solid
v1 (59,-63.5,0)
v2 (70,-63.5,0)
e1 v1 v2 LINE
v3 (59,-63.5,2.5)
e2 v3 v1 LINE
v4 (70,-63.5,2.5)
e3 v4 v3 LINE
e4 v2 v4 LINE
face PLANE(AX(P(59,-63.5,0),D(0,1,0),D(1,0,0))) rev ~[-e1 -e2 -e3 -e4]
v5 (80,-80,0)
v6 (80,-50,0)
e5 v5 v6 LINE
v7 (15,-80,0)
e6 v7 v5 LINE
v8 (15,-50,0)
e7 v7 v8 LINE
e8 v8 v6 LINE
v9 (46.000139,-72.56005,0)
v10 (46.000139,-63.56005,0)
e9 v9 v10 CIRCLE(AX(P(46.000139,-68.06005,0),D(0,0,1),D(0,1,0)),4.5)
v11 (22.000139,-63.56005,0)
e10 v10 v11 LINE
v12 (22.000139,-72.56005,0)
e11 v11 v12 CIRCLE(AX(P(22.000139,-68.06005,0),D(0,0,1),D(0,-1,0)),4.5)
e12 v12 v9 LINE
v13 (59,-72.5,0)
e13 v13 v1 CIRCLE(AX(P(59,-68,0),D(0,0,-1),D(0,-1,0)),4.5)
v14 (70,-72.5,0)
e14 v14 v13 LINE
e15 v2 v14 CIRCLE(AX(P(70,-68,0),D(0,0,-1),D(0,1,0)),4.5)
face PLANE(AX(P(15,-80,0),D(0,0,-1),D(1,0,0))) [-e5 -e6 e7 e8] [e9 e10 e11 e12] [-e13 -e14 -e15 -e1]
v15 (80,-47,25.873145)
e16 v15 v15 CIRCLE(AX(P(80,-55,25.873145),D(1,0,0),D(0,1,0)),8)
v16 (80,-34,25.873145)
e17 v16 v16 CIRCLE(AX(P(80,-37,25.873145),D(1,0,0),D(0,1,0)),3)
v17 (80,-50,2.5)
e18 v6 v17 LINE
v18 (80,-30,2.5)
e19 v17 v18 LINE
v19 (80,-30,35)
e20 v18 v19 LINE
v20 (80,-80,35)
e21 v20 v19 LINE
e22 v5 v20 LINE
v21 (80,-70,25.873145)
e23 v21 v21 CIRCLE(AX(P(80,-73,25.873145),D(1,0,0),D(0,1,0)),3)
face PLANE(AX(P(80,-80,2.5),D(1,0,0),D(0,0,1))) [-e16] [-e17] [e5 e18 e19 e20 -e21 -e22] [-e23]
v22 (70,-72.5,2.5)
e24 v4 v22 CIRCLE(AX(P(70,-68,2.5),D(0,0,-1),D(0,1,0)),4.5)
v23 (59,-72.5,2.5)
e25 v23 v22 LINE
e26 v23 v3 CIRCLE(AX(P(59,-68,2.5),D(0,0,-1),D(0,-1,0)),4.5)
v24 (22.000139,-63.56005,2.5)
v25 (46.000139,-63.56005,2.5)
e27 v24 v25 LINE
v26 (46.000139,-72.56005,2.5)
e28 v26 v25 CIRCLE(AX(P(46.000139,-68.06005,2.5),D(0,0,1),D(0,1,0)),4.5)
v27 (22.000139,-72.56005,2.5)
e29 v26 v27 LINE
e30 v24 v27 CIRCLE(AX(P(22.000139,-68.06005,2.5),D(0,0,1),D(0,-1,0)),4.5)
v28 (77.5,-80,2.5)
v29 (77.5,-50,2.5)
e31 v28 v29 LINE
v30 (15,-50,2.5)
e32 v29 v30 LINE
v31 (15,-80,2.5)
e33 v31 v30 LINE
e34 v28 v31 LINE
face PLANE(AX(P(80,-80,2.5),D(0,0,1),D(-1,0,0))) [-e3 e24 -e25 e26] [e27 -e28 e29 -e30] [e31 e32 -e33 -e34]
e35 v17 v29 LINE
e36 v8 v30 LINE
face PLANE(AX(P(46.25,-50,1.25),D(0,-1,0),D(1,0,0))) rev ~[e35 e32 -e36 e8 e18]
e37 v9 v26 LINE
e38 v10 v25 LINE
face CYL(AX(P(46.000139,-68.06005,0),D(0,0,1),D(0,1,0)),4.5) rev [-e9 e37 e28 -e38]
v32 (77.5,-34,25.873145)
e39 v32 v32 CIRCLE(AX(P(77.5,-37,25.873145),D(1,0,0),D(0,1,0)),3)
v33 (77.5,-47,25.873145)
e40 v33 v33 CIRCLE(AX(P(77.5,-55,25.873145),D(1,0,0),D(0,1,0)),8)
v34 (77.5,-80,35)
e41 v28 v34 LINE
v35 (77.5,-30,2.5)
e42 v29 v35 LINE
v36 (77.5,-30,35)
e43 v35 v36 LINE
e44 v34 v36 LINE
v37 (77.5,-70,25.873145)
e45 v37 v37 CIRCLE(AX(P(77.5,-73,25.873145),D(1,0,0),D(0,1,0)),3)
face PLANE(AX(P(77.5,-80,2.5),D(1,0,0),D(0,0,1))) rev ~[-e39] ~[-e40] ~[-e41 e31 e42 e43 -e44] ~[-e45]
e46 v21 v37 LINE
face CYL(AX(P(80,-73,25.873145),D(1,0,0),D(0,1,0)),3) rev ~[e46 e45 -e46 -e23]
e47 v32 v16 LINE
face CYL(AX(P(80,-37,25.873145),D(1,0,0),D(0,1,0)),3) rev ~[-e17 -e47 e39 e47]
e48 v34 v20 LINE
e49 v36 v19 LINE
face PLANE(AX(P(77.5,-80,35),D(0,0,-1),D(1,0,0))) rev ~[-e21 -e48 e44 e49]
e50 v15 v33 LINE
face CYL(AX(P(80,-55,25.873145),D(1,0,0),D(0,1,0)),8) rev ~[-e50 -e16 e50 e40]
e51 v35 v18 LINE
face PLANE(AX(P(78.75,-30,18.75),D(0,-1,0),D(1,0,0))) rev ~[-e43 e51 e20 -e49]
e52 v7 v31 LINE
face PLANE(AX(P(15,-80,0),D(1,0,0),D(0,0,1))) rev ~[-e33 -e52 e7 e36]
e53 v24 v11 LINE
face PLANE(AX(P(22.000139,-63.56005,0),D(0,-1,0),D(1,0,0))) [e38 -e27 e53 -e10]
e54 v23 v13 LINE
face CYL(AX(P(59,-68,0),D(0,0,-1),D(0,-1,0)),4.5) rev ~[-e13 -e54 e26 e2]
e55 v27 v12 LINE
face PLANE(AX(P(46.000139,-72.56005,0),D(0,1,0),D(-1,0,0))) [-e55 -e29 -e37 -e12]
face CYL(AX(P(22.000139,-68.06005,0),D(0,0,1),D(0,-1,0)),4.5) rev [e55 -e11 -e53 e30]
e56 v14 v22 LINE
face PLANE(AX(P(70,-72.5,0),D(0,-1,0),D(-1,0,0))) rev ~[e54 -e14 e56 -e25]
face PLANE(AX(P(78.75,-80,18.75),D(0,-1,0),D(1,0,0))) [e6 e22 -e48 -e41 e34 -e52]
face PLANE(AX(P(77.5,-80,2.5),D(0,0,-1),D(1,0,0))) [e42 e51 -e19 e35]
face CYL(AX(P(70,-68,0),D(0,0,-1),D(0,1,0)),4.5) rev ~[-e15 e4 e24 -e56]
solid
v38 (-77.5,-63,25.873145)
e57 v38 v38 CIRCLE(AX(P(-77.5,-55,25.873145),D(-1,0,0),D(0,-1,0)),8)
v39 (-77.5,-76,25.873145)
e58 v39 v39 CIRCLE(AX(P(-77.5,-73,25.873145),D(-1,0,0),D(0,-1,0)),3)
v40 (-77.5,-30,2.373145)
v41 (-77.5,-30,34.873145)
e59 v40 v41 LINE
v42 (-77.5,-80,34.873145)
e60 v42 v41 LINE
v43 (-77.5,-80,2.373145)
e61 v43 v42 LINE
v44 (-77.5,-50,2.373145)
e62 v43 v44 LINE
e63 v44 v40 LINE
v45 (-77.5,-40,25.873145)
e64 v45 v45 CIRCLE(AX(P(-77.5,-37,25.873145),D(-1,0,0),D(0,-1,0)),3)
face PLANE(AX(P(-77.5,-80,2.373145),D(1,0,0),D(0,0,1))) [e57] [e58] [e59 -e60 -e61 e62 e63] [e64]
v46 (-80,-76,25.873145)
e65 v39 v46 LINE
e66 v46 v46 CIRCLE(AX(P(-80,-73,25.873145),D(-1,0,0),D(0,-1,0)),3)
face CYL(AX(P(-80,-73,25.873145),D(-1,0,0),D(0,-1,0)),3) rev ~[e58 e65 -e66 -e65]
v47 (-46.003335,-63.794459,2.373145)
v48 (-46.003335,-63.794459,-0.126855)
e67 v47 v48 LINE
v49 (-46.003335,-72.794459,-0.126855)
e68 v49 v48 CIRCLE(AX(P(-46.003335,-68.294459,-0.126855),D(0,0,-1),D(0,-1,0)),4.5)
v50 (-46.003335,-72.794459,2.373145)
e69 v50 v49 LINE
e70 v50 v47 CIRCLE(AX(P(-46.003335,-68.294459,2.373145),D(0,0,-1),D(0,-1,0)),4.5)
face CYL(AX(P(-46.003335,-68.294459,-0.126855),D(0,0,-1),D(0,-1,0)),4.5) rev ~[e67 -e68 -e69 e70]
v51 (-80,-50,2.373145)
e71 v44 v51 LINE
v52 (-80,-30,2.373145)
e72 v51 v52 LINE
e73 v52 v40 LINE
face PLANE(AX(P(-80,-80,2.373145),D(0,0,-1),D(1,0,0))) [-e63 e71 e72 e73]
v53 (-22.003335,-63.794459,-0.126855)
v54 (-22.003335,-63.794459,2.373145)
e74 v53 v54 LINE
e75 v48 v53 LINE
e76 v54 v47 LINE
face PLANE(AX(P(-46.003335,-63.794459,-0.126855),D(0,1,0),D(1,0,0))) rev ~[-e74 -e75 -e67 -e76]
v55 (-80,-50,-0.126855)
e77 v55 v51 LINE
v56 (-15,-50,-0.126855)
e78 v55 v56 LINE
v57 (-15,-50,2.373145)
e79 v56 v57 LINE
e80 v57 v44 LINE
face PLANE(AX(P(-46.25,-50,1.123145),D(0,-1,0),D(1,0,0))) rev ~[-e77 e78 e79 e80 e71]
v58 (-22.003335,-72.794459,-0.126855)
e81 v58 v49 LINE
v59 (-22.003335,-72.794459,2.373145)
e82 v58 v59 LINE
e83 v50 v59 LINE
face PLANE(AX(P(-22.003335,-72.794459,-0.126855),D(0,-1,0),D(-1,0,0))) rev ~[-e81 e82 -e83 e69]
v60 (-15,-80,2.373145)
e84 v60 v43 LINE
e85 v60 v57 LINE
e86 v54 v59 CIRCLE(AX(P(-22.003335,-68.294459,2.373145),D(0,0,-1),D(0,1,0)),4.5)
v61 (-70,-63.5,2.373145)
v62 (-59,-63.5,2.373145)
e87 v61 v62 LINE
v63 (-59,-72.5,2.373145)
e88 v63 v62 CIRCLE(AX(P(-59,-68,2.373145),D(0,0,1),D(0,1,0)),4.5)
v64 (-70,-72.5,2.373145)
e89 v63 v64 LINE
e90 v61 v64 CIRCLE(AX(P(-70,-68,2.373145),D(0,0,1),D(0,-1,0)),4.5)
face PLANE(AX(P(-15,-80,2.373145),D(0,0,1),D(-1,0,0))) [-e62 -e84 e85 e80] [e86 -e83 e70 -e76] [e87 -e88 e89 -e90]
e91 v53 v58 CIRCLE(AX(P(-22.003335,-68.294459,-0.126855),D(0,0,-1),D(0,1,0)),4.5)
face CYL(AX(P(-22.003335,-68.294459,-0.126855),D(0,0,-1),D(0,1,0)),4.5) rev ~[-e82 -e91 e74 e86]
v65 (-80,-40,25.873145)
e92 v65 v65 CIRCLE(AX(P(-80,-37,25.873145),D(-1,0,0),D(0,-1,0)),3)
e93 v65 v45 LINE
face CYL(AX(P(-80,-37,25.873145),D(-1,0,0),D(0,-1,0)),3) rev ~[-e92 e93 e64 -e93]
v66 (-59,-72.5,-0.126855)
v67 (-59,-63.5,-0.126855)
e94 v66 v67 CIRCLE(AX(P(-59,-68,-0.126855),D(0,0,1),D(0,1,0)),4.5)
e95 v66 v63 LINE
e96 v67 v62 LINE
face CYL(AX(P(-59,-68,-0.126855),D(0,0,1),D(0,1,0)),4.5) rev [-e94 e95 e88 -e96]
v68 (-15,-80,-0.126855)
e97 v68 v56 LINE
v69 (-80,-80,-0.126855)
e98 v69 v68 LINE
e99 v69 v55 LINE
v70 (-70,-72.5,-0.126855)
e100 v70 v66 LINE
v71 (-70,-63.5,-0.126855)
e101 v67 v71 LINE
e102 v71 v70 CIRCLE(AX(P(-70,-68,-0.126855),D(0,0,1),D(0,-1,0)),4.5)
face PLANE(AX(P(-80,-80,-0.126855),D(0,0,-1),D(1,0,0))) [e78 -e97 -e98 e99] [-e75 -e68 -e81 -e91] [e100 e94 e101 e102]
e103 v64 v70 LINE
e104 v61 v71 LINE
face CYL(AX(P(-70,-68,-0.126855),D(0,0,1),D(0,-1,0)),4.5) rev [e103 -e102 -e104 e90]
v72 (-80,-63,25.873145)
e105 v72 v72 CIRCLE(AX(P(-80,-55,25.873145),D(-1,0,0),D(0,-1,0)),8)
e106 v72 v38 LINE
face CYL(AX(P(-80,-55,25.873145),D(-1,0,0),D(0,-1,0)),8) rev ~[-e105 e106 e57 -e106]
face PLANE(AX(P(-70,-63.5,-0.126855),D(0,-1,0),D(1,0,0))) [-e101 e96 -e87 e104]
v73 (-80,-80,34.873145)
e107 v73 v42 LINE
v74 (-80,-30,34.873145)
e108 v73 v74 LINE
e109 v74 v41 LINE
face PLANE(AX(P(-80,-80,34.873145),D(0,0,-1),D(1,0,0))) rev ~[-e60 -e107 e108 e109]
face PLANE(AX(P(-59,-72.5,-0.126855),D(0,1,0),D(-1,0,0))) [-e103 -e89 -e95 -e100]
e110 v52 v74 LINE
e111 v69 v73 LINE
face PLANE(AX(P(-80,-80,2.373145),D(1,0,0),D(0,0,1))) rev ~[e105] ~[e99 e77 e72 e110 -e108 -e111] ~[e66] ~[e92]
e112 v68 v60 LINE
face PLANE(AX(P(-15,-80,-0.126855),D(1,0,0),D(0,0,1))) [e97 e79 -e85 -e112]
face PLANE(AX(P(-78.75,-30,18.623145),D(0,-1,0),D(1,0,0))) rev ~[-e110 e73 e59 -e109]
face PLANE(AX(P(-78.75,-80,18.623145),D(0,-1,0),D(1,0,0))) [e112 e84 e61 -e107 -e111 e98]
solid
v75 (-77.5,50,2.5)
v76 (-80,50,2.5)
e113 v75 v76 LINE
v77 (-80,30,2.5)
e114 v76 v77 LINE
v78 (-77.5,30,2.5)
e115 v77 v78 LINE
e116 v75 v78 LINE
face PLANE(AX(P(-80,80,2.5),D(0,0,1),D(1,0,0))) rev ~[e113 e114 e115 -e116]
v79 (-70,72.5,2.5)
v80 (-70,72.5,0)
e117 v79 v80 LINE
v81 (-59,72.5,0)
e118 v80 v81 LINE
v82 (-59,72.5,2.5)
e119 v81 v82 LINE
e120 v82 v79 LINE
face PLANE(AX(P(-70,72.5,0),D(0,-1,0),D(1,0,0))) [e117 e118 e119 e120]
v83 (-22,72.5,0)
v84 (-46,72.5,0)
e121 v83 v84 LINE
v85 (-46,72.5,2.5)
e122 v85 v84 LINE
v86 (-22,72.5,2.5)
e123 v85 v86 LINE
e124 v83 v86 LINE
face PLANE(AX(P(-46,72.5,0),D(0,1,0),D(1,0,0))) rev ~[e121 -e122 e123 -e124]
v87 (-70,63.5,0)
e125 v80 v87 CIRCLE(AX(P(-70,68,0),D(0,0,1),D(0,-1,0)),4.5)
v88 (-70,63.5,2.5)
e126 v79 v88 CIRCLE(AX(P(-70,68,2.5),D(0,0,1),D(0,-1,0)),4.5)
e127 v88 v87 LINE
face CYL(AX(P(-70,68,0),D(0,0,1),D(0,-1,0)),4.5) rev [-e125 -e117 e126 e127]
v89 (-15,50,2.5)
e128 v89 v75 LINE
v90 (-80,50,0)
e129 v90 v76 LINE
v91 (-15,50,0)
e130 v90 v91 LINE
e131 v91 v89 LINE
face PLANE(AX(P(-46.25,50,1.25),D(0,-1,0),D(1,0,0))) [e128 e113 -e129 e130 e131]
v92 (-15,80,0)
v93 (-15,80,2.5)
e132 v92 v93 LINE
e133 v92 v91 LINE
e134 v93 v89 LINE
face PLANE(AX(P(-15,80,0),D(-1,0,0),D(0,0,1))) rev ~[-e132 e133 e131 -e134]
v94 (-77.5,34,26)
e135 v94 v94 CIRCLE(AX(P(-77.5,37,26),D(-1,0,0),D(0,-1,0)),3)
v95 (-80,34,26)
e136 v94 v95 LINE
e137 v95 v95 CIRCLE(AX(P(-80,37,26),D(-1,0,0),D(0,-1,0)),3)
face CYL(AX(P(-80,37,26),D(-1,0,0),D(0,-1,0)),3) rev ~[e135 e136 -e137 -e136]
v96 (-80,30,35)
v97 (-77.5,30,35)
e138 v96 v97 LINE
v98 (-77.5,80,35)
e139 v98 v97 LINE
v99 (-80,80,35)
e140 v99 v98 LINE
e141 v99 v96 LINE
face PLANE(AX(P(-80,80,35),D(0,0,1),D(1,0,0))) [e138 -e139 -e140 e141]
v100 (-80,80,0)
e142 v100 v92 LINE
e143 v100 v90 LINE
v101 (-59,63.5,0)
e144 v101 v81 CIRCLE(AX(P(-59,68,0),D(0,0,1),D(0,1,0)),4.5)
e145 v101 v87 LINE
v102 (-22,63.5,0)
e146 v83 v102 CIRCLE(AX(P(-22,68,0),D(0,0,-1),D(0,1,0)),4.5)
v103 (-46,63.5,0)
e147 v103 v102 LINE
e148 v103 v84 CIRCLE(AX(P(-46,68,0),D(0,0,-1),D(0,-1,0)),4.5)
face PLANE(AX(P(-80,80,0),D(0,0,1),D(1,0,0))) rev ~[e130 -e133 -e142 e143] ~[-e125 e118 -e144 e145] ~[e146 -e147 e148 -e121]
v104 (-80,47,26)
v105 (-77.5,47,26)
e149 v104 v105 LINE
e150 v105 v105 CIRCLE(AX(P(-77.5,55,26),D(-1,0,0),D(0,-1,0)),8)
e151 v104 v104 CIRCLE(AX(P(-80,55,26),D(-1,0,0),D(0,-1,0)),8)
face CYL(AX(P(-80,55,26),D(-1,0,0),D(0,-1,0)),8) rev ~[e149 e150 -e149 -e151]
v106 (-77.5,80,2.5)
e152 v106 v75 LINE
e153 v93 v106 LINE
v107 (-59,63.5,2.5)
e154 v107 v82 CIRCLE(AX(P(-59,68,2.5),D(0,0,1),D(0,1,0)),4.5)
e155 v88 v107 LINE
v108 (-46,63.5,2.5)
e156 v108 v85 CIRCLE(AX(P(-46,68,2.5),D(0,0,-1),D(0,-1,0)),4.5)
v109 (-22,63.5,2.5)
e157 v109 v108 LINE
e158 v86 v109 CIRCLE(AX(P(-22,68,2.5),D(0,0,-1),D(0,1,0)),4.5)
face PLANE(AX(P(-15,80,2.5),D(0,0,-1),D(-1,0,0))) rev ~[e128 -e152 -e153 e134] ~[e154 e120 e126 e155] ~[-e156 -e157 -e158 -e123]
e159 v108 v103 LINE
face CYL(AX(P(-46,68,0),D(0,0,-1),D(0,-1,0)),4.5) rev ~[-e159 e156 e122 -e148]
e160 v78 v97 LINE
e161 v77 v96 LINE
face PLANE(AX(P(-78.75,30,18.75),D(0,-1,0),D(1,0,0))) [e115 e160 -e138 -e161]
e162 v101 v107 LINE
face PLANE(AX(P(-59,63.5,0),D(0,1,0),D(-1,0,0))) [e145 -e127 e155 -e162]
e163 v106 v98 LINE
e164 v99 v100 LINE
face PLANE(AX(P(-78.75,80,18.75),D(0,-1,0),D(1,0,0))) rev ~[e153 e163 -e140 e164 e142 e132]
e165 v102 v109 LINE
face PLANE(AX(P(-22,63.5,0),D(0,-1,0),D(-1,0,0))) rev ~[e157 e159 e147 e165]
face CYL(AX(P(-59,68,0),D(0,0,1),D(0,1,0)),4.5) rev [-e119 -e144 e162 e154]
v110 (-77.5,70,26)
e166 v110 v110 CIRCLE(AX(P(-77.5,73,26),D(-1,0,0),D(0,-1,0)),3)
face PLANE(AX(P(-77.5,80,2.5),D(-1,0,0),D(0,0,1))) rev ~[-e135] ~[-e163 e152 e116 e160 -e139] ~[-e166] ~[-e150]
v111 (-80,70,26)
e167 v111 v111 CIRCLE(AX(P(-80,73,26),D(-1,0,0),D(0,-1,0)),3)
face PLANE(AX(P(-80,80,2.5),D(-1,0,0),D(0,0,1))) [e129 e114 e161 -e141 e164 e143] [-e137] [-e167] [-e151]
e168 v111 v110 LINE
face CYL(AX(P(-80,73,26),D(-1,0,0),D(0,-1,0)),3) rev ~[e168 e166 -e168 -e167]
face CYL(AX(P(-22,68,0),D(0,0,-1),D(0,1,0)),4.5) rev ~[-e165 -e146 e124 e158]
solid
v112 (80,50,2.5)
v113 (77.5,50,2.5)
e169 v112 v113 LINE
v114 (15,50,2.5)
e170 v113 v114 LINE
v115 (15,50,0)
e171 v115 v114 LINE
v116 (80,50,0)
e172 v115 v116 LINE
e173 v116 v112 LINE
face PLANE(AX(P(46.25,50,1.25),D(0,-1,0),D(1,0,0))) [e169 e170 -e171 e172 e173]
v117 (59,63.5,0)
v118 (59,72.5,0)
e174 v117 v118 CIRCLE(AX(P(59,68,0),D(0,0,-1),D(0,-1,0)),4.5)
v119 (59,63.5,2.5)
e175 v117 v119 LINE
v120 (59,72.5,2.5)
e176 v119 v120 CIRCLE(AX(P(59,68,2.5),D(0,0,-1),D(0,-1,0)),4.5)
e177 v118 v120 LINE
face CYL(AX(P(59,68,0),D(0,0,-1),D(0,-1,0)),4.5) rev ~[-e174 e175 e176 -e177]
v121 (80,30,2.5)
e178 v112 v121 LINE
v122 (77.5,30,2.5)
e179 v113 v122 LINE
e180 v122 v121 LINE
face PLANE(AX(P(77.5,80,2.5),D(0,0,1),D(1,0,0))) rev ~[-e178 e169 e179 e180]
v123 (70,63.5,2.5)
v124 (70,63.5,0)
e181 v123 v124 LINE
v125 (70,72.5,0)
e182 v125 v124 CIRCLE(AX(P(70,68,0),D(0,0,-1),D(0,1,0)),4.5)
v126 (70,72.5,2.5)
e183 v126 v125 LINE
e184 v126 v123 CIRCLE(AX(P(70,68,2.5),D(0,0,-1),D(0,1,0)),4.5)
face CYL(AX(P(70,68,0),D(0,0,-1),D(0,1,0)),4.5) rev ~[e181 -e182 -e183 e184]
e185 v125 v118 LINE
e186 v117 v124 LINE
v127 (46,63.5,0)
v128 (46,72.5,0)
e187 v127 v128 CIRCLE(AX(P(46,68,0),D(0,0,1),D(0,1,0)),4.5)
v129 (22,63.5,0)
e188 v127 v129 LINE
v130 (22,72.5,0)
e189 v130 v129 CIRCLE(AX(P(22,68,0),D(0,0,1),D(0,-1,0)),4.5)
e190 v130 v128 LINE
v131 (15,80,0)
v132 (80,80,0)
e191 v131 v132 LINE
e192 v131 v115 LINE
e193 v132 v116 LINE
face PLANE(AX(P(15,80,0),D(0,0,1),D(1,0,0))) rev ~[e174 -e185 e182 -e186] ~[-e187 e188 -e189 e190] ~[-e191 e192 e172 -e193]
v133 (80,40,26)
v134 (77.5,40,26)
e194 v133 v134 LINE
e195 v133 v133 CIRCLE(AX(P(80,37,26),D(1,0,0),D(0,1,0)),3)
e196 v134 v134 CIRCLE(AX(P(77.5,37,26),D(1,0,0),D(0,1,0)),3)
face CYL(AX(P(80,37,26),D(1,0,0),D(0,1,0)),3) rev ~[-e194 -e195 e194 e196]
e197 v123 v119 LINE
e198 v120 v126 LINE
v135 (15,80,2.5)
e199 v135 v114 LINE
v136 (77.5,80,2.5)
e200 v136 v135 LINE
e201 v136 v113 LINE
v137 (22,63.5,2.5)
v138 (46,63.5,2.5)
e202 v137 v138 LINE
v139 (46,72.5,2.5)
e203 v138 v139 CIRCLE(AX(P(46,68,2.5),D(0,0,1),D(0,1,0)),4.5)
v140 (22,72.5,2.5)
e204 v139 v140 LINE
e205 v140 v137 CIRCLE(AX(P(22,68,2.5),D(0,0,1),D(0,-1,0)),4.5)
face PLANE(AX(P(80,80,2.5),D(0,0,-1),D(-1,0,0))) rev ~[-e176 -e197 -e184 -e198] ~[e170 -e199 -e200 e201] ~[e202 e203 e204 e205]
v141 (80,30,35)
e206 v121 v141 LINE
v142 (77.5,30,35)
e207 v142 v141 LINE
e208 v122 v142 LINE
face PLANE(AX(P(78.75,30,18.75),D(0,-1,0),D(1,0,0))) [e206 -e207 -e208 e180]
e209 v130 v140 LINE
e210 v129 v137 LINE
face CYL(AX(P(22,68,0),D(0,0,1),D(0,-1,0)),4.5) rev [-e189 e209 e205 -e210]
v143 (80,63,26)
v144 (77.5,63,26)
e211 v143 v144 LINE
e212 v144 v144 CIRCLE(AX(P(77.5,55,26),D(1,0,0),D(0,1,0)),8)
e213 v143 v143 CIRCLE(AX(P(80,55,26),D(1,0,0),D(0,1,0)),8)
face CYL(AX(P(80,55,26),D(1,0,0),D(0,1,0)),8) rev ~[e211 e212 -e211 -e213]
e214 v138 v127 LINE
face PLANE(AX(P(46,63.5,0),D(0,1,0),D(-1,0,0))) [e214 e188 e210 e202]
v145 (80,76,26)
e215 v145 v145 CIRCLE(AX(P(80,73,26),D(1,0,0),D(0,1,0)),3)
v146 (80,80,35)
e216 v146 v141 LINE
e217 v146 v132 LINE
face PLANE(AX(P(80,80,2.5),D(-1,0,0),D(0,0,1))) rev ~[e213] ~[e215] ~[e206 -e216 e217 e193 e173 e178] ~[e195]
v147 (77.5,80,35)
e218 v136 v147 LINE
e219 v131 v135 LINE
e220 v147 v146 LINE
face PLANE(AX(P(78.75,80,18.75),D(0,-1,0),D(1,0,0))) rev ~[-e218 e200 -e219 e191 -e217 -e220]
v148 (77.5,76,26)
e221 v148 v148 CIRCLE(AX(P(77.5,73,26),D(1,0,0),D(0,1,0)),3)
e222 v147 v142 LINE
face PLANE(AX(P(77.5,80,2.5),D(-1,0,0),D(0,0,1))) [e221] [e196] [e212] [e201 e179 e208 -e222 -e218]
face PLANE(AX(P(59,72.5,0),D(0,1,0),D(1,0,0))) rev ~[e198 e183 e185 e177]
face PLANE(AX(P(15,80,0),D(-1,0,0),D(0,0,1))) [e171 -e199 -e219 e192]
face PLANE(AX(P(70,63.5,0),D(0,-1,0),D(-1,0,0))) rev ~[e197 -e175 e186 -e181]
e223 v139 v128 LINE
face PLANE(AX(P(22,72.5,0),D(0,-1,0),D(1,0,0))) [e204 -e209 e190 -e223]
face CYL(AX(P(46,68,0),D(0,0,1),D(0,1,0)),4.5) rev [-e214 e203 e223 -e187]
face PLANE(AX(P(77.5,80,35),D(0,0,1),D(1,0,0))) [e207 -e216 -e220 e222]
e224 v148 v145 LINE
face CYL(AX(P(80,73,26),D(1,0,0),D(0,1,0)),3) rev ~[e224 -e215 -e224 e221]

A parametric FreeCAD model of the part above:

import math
import FreeCAD as App
import Part
import Sketcher

doc = App.newDocument("Part")
body = doc.addObject("PartDesign::Body", "Body")

sketch1 = body.newObject("Sketcher::SketchObject", "Sketch")
sketch1.AttachmentSupport = (doc.getObject("XZ_Plane"), [""])
sketch1.MapMode = "FlatFace"
sketch1.AttachmentOffset = App.Placement(App.Vector(0, 0, 80), App.Rotation())
sketch1.addGeometry([
    Part.LineSegment(App.Vector(-15, -0.1, 0), App.Vector(-15, 2.4, 0)),
    Part.LineSegment(App.Vector(-15, 2.4, 0), App.Vector(-80, 2.4, 0)),
    Part.LineSegment(App.Vector(-80, 2.4, 0), App.Vector(-80, -0.1, 0)),
    Part.LineSegment(App.Vector(-80, -0.1, 0), App.Vector(-15, -0.1, 0)),
], False)
sketch1.addConstraint([
    Sketcher.Constraint("Coincident", 0, 2, 1, 1),
    Sketcher.Constraint("Coincident", 1, 2, 2, 1),
    Sketcher.Constraint("Coincident", 2, 2, 3, 1),
    Sketcher.Constraint("Coincident", 3, 2, 0, 1),
    Sketcher.Constraint("Vertical", 0),
    Sketcher.Constraint("Horizontal", 1),
    Sketcher.Constraint("Vertical", 2),
    Sketcher.Constraint("Horizontal", 3),
    Sketcher.Constraint("DistanceX", 1, 2, 1, 1, 65.0),
    Sketcher.Constraint("DistanceY", 0, 1, 0, 2, 2.5),
    Sketcher.Constraint("DistanceX", 0, 2, -1, 1, 15.0),
    Sketcher.Constraint("DistanceY", -1, 1, 0, 2, 2.373145),
])
pad1 = body.newObject("PartDesign::Pad", "Pad")
pad1.Profile = sketch1
pad1.Length = 30
pad1.Reversed = True

sketch2 = body.newObject("Sketcher::SketchObject", "Sketch001")
sketch2.AttachmentSupport = (doc.getObject("XZ_Plane"), [""])
sketch2.MapMode = "FlatFace"
sketch2.AttachmentOffset = App.Placement(App.Vector(0, 0, 80), App.Rotation())
sketch2.addGeometry([
    Part.LineSegment(App.Vector(-80, 34.9, 0), App.Vector(-80, 2.4, 0)),
    Part.LineSegment(App.Vector(-80, 2.4, 0), App.Vector(-77.5, 2.4, 0)),
    Part.LineSegment(App.Vector(-77.5, 2.4, 0), App.Vector(-77.5, 34.9, 0)),
    Part.LineSegment(App.Vector(-77.5, 34.9, 0), App.Vector(-80, 34.9, 0)),
], False)
sketch2.addConstraint([
    Sketcher.Constraint("Coincident", 0, 2, 1, 1),
    Sketcher.Constraint("Coincident", 1, 2, 2, 1),
    Sketcher.Constraint("Coincident", 2, 2, 3, 1),
    Sketcher.Constraint("Coincident", 3, 2, 0, 1),
    Sketcher.Constraint("Vertical", 0),
    Sketcher.Constraint("Horizontal", 1),
    Sketcher.Constraint("Vertical", 2),
    Sketcher.Constraint("Horizontal", 3),
    Sketcher.Constraint("DistanceX", 1, 1, 1, 2, 2.5),
    Sketcher.Constraint("DistanceY", 0, 2, 0, 1, 32.5),
    Sketcher.Constraint("DistanceX", 0, 2, -1, 1, 80.0),
    Sketcher.Constraint("DistanceY", -1, 1, 0, 2, 2.373145),
])
pad2 = body.newObject("PartDesign::Pad", "Pad001")
pad2.Profile = sketch2
pad2.Length = 50
pad2.Reversed = True

sketch3 = body.newObject("Sketcher::SketchObject", "Sketch002")
sketch3.AttachmentSupport = (doc.getObject("YZ_Plane"), [""])
sketch3.MapMode = "FlatFace"
sketch3.AttachmentOffset = App.Placement(App.Vector(0, 0, -80), App.Rotation())
sketch3.addGeometry([
    Part.Circle(App.Vector(-37, 25.9, 0), App.Vector(0, 0, 1), 3),
    Part.Circle(App.Vector(-55, 25.9, 0), App.Vector(0, 0, 1), 8),
    Part.Circle(App.Vector(-73, 25.9, 0), App.Vector(0, 0, 1), 3),
], False)
sketch3.addConstraint([
    Sketcher.Constraint("Equal", 0, 2),
    Sketcher.Constraint("Horizontal", 0, 3, 1, 3),
    Sketcher.Constraint("Horizontal", 1, 3, 2, 3),
    Sketcher.Constraint("Diameter", 0, 6.0),
    Sketcher.Constraint("Diameter", 1, 16.0),
    Sketcher.Constraint("DistanceX", 0, 3, -1, 1, 37.0),
    Sketcher.Constraint("DistanceX", 1, 3, -1, 1, 55.0),
    Sketcher.Constraint("DistanceX", 2, 3, -1, 1, 73.0),
    Sketcher.Constraint("DistanceY", -1, 1, 0, 3, 25.873145),
])
pocket1 = body.newObject("PartDesign::Pocket", "Pocket")
pocket1.Profile = sketch3
pocket1.Length = 10
pocket1.Midplane = True

sketch4 = body.newObject("Sketcher::SketchObject", "Sketch003")
sketch4.AttachmentSupport = (doc.getObject("XY_Plane"), [""])
sketch4.MapMode = "FlatFace"
sketch4.AttachmentOffset = App.Placement(App.Vector(0, 0, -0.126855), App.Rotation())
sketch4.addGeometry([
    Part.LineSegment(App.Vector(-59, -72.5, 0), App.Vector(-70, -72.5, 0)),
    Part.ArcOfCircle(Part.Circle(App.Vector(-70, -68, 0), App.Vector(0, 0, 1), 4.5), math.radians(90), math.radians(270)),
    Part.LineSegment(App.Vector(-70, -63.5, 0), App.Vector(-59, -63.5, 0)),
    Part.ArcOfCircle(Part.Circle(App.Vector(-59, -68, 0), App.Vector(0, 0, 1), 4.5), math.radians(-90), math.radians(90)),
    Part.LineSegment(App.Vector(-22, -72.8, 0), App.Vector(-46, -72.8, 0)),
    Part.ArcOfCircle(Part.Circle(App.Vector(-46, -68.3, 0), App.Vector(0, 0, 1), 4.5), math.radians(90), math.radians(270)),
    Part.LineSegment(App.Vector(-46, -63.8, 0), App.Vector(-22, -63.8, 0)),
    Part.ArcOfCircle(Part.Circle(App.Vector(-22, -68.3, 0), App.Vector(0, 0, 1), 4.5), math.radians(-90), math.radians(90)),
], False)
sketch4.addConstraint([
    Sketcher.Constraint("Tangent", 0, 2, 1, 2),
    Sketcher.Constraint("Tangent", 1, 1, 2, 1),
    Sketcher.Constraint("Tangent", 2, 2, 3, 2),
    Sketcher.Constraint("Tangent", 3, 1, 0, 1),
    Sketcher.Constraint("Tangent", 4, 2, 5, 2),
    Sketcher.Constraint("Tangent", 5, 1, 6, 1),
    Sketcher.Constraint("Tangent", 6, 2, 7, 2),
    Sketcher.Constraint("Tangent", 7, 1, 4, 1),
    Sketcher.Constraint("Horizontal", 0),
    Sketcher.Constraint("Horizontal", 2),
    Sketcher.Constraint("Horizontal", 4),
    Sketcher.Constraint("Horizontal", 6),
    Sketcher.Constraint("Equal", 3, 5),
    Sketcher.Constraint("Radius", 1, 4.5),
    Sketcher.Constraint("DistanceX", 0, 2, 0, 1, 11.0),
    Sketcher.Constraint("DistanceX", 4, 2, 4, 1, 24.0),
    Sketcher.Constraint("DistanceX", 1, 3, -1, 1, 70.0),
    Sketcher.Constraint("DistanceY", 1, 3, -1, 1, 68.0),
    Sketcher.Constraint("DistanceY", 5, 3, -1, 1, 68.294459),
    Sketcher.Constraint("DistanceX", 5, 3, -1, 1, 46.003335),
])
pocket2 = body.newObject("PartDesign::Pocket", "Pocket001")
pocket2.Profile = sketch4
pocket2.Length = 10
pocket2.Midplane = True
body2 = doc.addObject("PartDesign::Body", "Body001")

sketch5 = body2.newObject("Sketcher::SketchObject", "Sketch004")
sketch5.AttachmentSupport = (doc.getObject("XZ_Plane001"), [""])
sketch5.MapMode = "FlatFace"
sketch5.AttachmentOffset = App.Placement(App.Vector(0, 0, 80), App.Rotation())
sketch5.addGeometry([
    Part.LineSegment(App.Vector(15, 2.5, 0), App.Vector(15, 0, 0)),
    Part.LineSegment(App.Vector(15, 0, 0), App.Vector(80, 0, 0)),
    Part.LineSegment(App.Vector(80, 0, 0), App.Vector(80, 2.5, 0)),
    Part.LineSegment(App.Vector(80, 2.5, 0), App.Vector(15, 2.5, 0)),
], False)
sketch5.addConstraint([
    Sketcher.Constraint("Coincident", 0, 2, 1, 1),
    Sketcher.Constraint("Coincident", 1, 2, 2, 1),
    Sketcher.Constraint("Coincident", 2, 2, 3, 1),
    Sketcher.Constraint("Coincident", 3, 2, 0, 1),
    Sketcher.Constraint("Vertical", 0),
    Sketcher.Constraint("Horizontal", 1),
    Sketcher.Constraint("Vertical", 2),
    Sketcher.Constraint("Horizontal", 3),
    Sketcher.Constraint("PointOnObject", 0, 2, -1),
    Sketcher.Constraint("DistanceX", 1, 1, 1, 2, 65.0),
    Sketcher.Constraint("DistanceY", 0, 2, 0, 1, 2.5),
    Sketcher.Constraint("DistanceX", -1, 1, 0, 2, 15.0),
])
pad3 = body2.newObject("PartDesign::Pad", "Pad002")
pad3.Profile = sketch5
pad3.Length = 30
pad3.Reversed = True

sketch6 = body2.newObject("Sketcher::SketchObject", "Sketch005")
sketch6.AttachmentSupport = (doc.getObject("XZ_Plane001"), [""])
sketch6.MapMode = "FlatFace"
sketch6.AttachmentOffset = App.Placement(App.Vector(0, 0, 80), App.Rotation())
sketch6.addGeometry([
    Part.LineSegment(App.Vector(77.5, 35, 0), App.Vector(77.5, 2.5, 0)),
    Part.LineSegment(App.Vector(77.5, 2.5, 0), App.Vector(80, 2.5, 0)),
    Part.LineSegment(App.Vector(80, 2.5, 0), App.Vector(80, 35, 0)),
    Part.LineSegment(App.Vector(80, 35, 0), App.Vector(77.5, 35, 0)),
], False)
sketch6.addConstraint([
    Sketcher.Constraint("Coincident", 0, 2, 1, 1),
    Sketcher.Constraint("Coincident", 1, 2, 2, 1),
    Sketcher.Constraint("Coincident", 2, 2, 3, 1),
    Sketcher.Constraint("Coincident", 3, 2, 0, 1),
    Sketcher.Constraint("Vertical", 0),
    Sketcher.Constraint("Horizontal", 1),
    Sketcher.Constraint("Vertical", 2),
    Sketcher.Constraint("Horizontal", 3),
    Sketcher.Constraint("DistanceX", 1, 1, 1, 2, 2.5),
    Sketcher.Constraint("DistanceY", 0, 2, 0, 1, 32.5),
    Sketcher.Constraint("DistanceX", -1, 1, 1, 2, 80.0),
    Sketcher.Constraint("DistanceY", -1, 1, 2, 2, 35.0),
])
pad4 = body2.newObject("PartDesign::Pad", "Pad003")
pad4.Profile = sketch6
pad4.Length = 50
pad4.Reversed = True

sketch7 = body2.newObject("Sketcher::SketchObject", "Sketch006")
sketch7.AttachmentSupport = (doc.getObject("YZ_Plane001"), [""])
sketch7.MapMode = "FlatFace"
sketch7.AttachmentOffset = App.Placement(App.Vector(0, 0, 80), App.Rotation())
sketch7.addGeometry([
    Part.Circle(App.Vector(-73, 25.9, 0), App.Vector(0, 0, 1), 3),
    Part.Circle(App.Vector(-55, 25.9, 0), App.Vector(0, 0, 1), 8),
    Part.Circle(App.Vector(-37, 25.9, 0), App.Vector(0, 0, 1), 3),
], False)
sketch7.addConstraint([
    Sketcher.Constraint("Equal", 0, 2),
    Sketcher.Constraint("Horizontal", 0, 3, 1, 3),
    Sketcher.Constraint("Horizontal", 1, 3, 2, 3),
    Sketcher.Constraint("Diameter", 0, 6.0),
    Sketcher.Constraint("Diameter", 1, 16.0),
    Sketcher.Constraint("DistanceX", 0, 3, -1, 1, 73.0),
    Sketcher.Constraint("DistanceX", 1, 3, -1, 1, 55.0),
    Sketcher.Constraint("DistanceX", 2, 3, -1, 1, 37.0),
    Sketcher.Constraint("DistanceY", -1, 1, 0, 3, 25.873145),
])
pocket3 = body2.newObject("PartDesign::Pocket", "Pocket002")
pocket3.Profile = sketch7
pocket3.Length = 10
pocket3.Midplane = True

sketch8 = body2.newObject("Sketcher::SketchObject", "Sketch007")
sketch8.AttachmentSupport = (doc.getObject("XY_Plane001"), [""])
sketch8.MapMode = "FlatFace"
sketch8.addGeometry([
    Part.LineSegment(App.Vector(46, -72.6, 0), App.Vector(22, -72.6, 0)),
    Part.ArcOfCircle(Part.Circle(App.Vector(22, -68.1, 0), App.Vector(0, 0, 1), 4.5), math.radians(90), math.radians(270)),
    Part.LineSegment(App.Vector(22, -63.6, 0), App.Vector(46, -63.6, 0)),
    Part.ArcOfCircle(Part.Circle(App.Vector(46, -68.1, 0), App.Vector(0, 0, 1), 4.5), math.radians(-90), math.radians(90)),
    Part.LineSegment(App.Vector(70, -72.5, 0), App.Vector(59, -72.5, 0)),
    Part.ArcOfCircle(Part.Circle(App.Vector(59, -68, 0), App.Vector(0, 0, 1), 4.5), math.radians(90), math.radians(270)),
    Part.LineSegment(App.Vector(59, -63.5, 0), App.Vector(70, -63.5, 0)),
    Part.ArcOfCircle(Part.Circle(App.Vector(70, -68, 0), App.Vector(0, 0, 1), 4.5), math.radians(-90), math.radians(90)),
], False)
sketch8.addConstraint([
    Sketcher.Constraint("Tangent", 0, 2, 1, 2),
    Sketcher.Constraint("Tangent", 1, 1, 2, 1),
    Sketcher.Constraint("Tangent", 2, 2, 3, 2),
    Sketcher.Constraint("Tangent", 3, 1, 0, 1),
    Sketcher.Constraint("Tangent", 4, 2, 5, 2),
    Sketcher.Constraint("Tangent", 5, 1, 6, 1),
    Sketcher.Constraint("Tangent", 6, 2, 7, 2),
    Sketcher.Constraint("Tangent", 7, 1, 4, 1),
    Sketcher.Constraint("Horizontal", 0),
    Sketcher.Constraint("Horizontal", 2),
    Sketcher.Constraint("Horizontal", 4),
    Sketcher.Constraint("Horizontal", 6),
    Sketcher.Constraint("Equal", 3, 5),
    Sketcher.Constraint("Radius", 1, 4.5),
    Sketcher.Constraint("DistanceX", 0, 2, 0, 1, 24.0),
    Sketcher.Constraint("DistanceX", 4, 2, 4, 1, 11.0),
    Sketcher.Constraint("DistanceX", -1, 1, 5, 3, 59.0),
    Sketcher.Constraint("DistanceY", 5, 3, -1, 1, 68.0),
    Sketcher.Constraint("DistanceX", -1, 1, 1, 3, 22.000139),
    Sketcher.Constraint("DistanceY", 1, 3, -1, 1, 68.06005),
])
pocket4 = body2.newObject("PartDesign::Pocket", "Pocket003")
pocket4.Profile = sketch8
pocket4.Length = 10
pocket4.Midplane = True
body3 = doc.addObject("PartDesign::Body", "Body002")

sketch9 = body3.newObject("Sketcher::SketchObject", "Sketch008")
sketch9.AttachmentSupport = (doc.getObject("XZ_Plane002"), [""])
sketch9.MapMode = "FlatFace"
sketch9.AttachmentOffset = App.Placement(App.Vector(0, 0, -80), App.Rotation())
sketch9.addGeometry([
    Part.LineSegment(App.Vector(-15, 0, 0), App.Vector(-15, 2.5, 0)),
    Part.LineSegment(App.Vector(-15, 2.5, 0), App.Vector(-80, 2.5, 0)),
    Part.LineSegment(App.Vector(-80, 2.5, 0), App.Vector(-80, 0, 0)),
    Part.LineSegment(App.Vector(-80, 0, 0), App.Vector(-15, 0, 0)),
], False)
sketch9.addConstraint([
    Sketcher.Constraint("Coincident", 0, 2, 1, 1),
    Sketcher.Constraint("Coincident", 1, 2, 2, 1),
    Sketcher.Constraint("Coincident", 2, 2, 3, 1),
    Sketcher.Constraint("Coincident", 3, 2, 0, 1),
    Sketcher.Constraint("Vertical", 0),
    Sketcher.Constraint("Horizontal", 1),
    Sketcher.Constraint("Vertical", 2),
    Sketcher.Constraint("Horizontal", 3),
    Sketcher.Constraint("PointOnObject", 2, 2, -1),
    Sketcher.Constraint("DistanceX", 1, 2, 1, 1, 65.0),
    Sketcher.Constraint("DistanceY", 0, 1, 0, 2, 2.5),
    Sketcher.Constraint("DistanceX", 0, 2, -1, 1, 15.0),
])
pad5 = body3.newObject("PartDesign::Pad", "Pad004")
pad5.Profile = sketch9
pad5.Length = 30

sketch10 = body3.newObject("Sketcher::SketchObject", "Sketch009")
sketch10.AttachmentSupport = (doc.getObject("XZ_Plane002"), [""])
sketch10.MapMode = "FlatFace"
sketch10.AttachmentOffset = App.Placement(App.Vector(0, 0, -80), App.Rotation())
sketch10.addGeometry([
    Part.LineSegment(App.Vector(-80, 35, 0), App.Vector(-80, 2.5, 0)),
    Part.LineSegment(App.Vector(-80, 2.5, 0), App.Vector(-77.5, 2.5, 0)),
    Part.LineSegment(App.Vector(-77.5, 2.5, 0), App.Vector(-77.5, 35, 0)),
    Part.LineSegment(App.Vector(-77.5, 35, 0), App.Vector(-80, 35, 0)),
], False)
sketch10.addConstraint([
    Sketcher.Constraint("Coincident", 0, 2, 1, 1),
    Sketcher.Constraint("Coincident", 1, 2, 2, 1),
    Sketcher.Constraint("Coincident", 2, 2, 3, 1),
    Sketcher.Constraint("Coincident", 3, 2, 0, 1),
    Sketcher.Constraint("Vertical", 0),
    Sketcher.Constraint("Horizontal", 1),
    Sketcher.Constraint("Vertical", 2),
    Sketcher.Constraint("Horizontal", 3),
    Sketcher.Constraint("DistanceX", 1, 1, 1, 2, 2.5),
    Sketcher.Constraint("DistanceY", 0, 2, 0, 1, 32.5),
    Sketcher.Constraint("DistanceX", 0, 2, -1, 1, 80.0),
    Sketcher.Constraint("DistanceY", -1, 1, 2, 2, 35.0),
])
pad6 = body3.newObject("PartDesign::Pad", "Pad005")
pad6.Profile = sketch10
pad6.Length = 50

sketch11 = body3.newObject("Sketcher::SketchObject", "Sketch010")
sketch11.AttachmentSupport = (doc.getObject("YZ_Plane002"), [""])
sketch11.MapMode = "FlatFace"
sketch11.AttachmentOffset = App.Placement(App.Vector(0, 0, -80), App.Rotation())
sketch11.addGeometry([
    Part.Circle(App.Vector(73, 26, 0), App.Vector(0, 0, 1), 3),
    Part.Circle(App.Vector(55, 26, 0), App.Vector(0, 0, 1), 8),
    Part.Circle(App.Vector(37, 26, 0), App.Vector(0, 0, 1), 3),
], False)
sketch11.addConstraint([
    Sketcher.Constraint("Equal", 0, 2),
    Sketcher.Constraint("Horizontal", 0, 3, 1, 3),
    Sketcher.Constraint("Horizontal", 1, 3, 2, 3),
    Sketcher.Constraint("Diameter", 0, 6.0),
    Sketcher.Constraint("Diameter", 1, 16.0),
    Sketcher.Constraint("DistanceX", -1, 1, 0, 3, 73.0),
    Sketcher.Constraint("DistanceY", -1, 1, 0, 3, 26.0),
    Sketcher.Constraint("DistanceX", -1, 1, 1, 3, 55.0),
    Sketcher.Constraint("DistanceX", -1, 1, 2, 3, 37.0),
])
pocket5 = body3.newObject("PartDesign::Pocket", "Pocket004")
pocket5.Profile = sketch11
pocket5.Length = 10
pocket5.Midplane = True

sketch12 = body3.newObject("Sketcher::SketchObject", "Sketch011")
sketch12.AttachmentSupport = (doc.getObject("XY_Plane002"), [""])
sketch12.MapMode = "FlatFace"
sketch12.addGeometry([
    Part.LineSegment(App.Vector(-59, 63.5, 0), App.Vector(-70, 63.5, 0)),
    Part.ArcOfCircle(Part.Circle(App.Vector(-70, 68, 0), App.Vector(0, 0, 1), 4.5), math.radians(90), math.radians(270)),
    Part.LineSegment(App.Vector(-70, 72.5, 0), App.Vector(-59, 72.5, 0)),
    Part.ArcOfCircle(Part.Circle(App.Vector(-59, 68, 0), App.Vector(0, 0, 1), 4.5), math.radians(-90), math.radians(90)),
    Part.LineSegment(App.Vector(-22, 63.5, 0), App.Vector(-46, 63.5, 0)),
    Part.ArcOfCircle(Part.Circle(App.Vector(-46, 68, 0), App.Vector(0, 0, 1), 4.5), math.radians(90), math.radians(270)),
    Part.LineSegment(App.Vector(-46, 72.5, 0), App.Vector(-22, 72.5, 0)),
    Part.ArcOfCircle(Part.Circle(App.Vector(-22, 68, 0), App.Vector(0, 0, 1), 4.5), math.radians(-90), math.radians(90)),
], False)
sketch12.addConstraint([
    Sketcher.Constraint("Tangent", 0, 2, 1, 2),
    Sketcher.Constraint("Tangent", 1, 1, 2, 1),
    Sketcher.Constraint("Tangent", 2, 2, 3, 2),
    Sketcher.Constraint("Tangent", 3, 1, 0, 1),
    Sketcher.Constraint("Tangent", 4, 2, 5, 2),
    Sketcher.Constraint("Tangent", 5, 1, 6, 1),
    Sketcher.Constraint("Tangent", 6, 2, 7, 2),
    Sketcher.Constraint("Tangent", 7, 1, 4, 1),
    Sketcher.Constraint("Horizontal", 0),
    Sketcher.Constraint("Horizontal", 2),
    Sketcher.Constraint("Horizontal", 4),
    Sketcher.Constraint("Horizontal", 6),
    Sketcher.Constraint("Equal", 3, 5),
    Sketcher.Constraint("Horizontal", 3, 3, 5, 3),
    Sketcher.Constraint("Radius", 1, 4.5),
    Sketcher.Constraint("DistanceX", 0, 2, 0, 1, 11.0),
    Sketcher.Constraint("DistanceX", 4, 2, 4, 1, 24.0),
    Sketcher.Constraint("DistanceX", 1, 3, -1, 1, 70.0),
    Sketcher.Constraint("DistanceY", -1, 1, 1, 3, 68.0),
    Sketcher.Constraint("DistanceX", 5, 3, -1, 1, 46.0),
])
pocket6 = body3.newObject("PartDesign::Pocket", "Pocket005")
pocket6.Profile = sketch12
pocket6.Length = 10
pocket6.Midplane = True
body4 = doc.addObject("PartDesign::Body", "Body003")

sketch13 = body4.newObject("Sketcher::SketchObject", "Sketch012")
sketch13.AttachmentSupport = (doc.getObject("XZ_Plane003"), [""])
sketch13.MapMode = "FlatFace"
sketch13.AttachmentOffset = App.Placement(App.Vector(0, 0, -80), App.Rotation())
sketch13.addGeometry([
    Part.LineSegment(App.Vector(15, 2.5, 0), App.Vector(15, 0, 0)),
    Part.LineSegment(App.Vector(15, 0, 0), App.Vector(80, 0, 0)),
    Part.LineSegment(App.Vector(80, 0, 0), App.Vector(80, 2.5, 0)),
    Part.LineSegment(App.Vector(80, 2.5, 0), App.Vector(15, 2.5, 0)),
], False)
sketch13.addConstraint([
    Sketcher.Constraint("Coincident", 0, 2, 1, 1),
    Sketcher.Constraint("Coincident", 1, 2, 2, 1),
    Sketcher.Constraint("Coincident", 2, 2, 3, 1),
    Sketcher.Constraint("Coincident", 3, 2, 0, 1),
    Sketcher.Constraint("Vertical", 0),
    Sketcher.Constraint("Horizontal", 1),
    Sketcher.Constraint("Vertical", 2),
    Sketcher.Constraint("Horizontal", 3),
    Sketcher.Constraint("PointOnObject", 0, 2, -1),
    Sketcher.Constraint("DistanceX", 1, 1, 1, 2, 65.0),
    Sketcher.Constraint("DistanceY", 0, 2, 0, 1, 2.5),
    Sketcher.Constraint("DistanceX", -1, 1, 0, 2, 15.0),
])
pad7 = body4.newObject("PartDesign::Pad", "Pad006")
pad7.Profile = sketch13
pad7.Length = 30

sketch14 = body4.newObject("Sketcher::SketchObject", "Sketch013")
sketch14.AttachmentSupport = (doc.getObject("XZ_Plane003"), [""])
sketch14.MapMode = "FlatFace"
sketch14.AttachmentOffset = App.Placement(App.Vector(0, 0, -80), App.Rotation())
sketch14.addGeometry([
    Part.LineSegment(App.Vector(77.5, 35, 0), App.Vector(77.5, 2.5, 0)),
    Part.LineSegment(App.Vector(77.5, 2.5, 0), App.Vector(80, 2.5, 0)),
    Part.LineSegment(App.Vector(80, 2.5, 0), App.Vector(80, 35, 0)),
    Part.LineSegment(App.Vector(80, 35, 0), App.Vector(77.5, 35, 0)),
], False)
sketch14.addConstraint([
    Sketcher.Constraint("Coincident", 0, 2, 1, 1),
    Sketcher.Constraint("Coincident", 1, 2, 2, 1),
    Sketcher.Constraint("Coincident", 2, 2, 3, 1),
    Sketcher.Constraint("Coincident", 3, 2, 0, 1),
    Sketcher.Constraint("Vertical", 0),
    Sketcher.Constraint("Horizontal", 1),
    Sketcher.Constraint("Vertical", 2),
    Sketcher.Constraint("Horizontal", 3),
    Sketcher.Constraint("DistanceX", 1, 1, 1, 2, 2.5),
    Sketcher.Constraint("DistanceY", 0, 2, 0, 1, 32.5),
    Sketcher.Constraint("DistanceX", -1, 1, 1, 2, 80.0),
    Sketcher.Constraint("DistanceY", -1, 1, 2, 2, 35.0),
])
pad8 = body4.newObject("PartDesign::Pad", "Pad007")
pad8.Profile = sketch14
pad8.Length = 50

sketch15 = body4.newObject("Sketcher::SketchObject", "Sketch014")
sketch15.AttachmentSupport = (doc.getObject("YZ_Plane003"), [""])
sketch15.MapMode = "FlatFace"
sketch15.AttachmentOffset = App.Placement(App.Vector(0, 0, 80), App.Rotation())
sketch15.addGeometry([
    Part.Circle(App.Vector(37, 26, 0), App.Vector(0, 0, 1), 3),
    Part.Circle(App.Vector(55, 26, 0), App.Vector(0, 0, 1), 8),
    Part.Circle(App.Vector(73, 26, 0), App.Vector(0, 0, 1), 3),
], False)
sketch15.addConstraint([
    Sketcher.Constraint("Equal", 0, 2),
    Sketcher.Constraint("Horizontal", 0, 3, 1, 3),
    Sketcher.Constraint("Horizontal", 1, 3, 2, 3),
    Sketcher.Constraint("Diameter", 0, 6.0),
    Sketcher.Constraint("Diameter", 1, 16.0),
    Sketcher.Constraint("DistanceX", -1, 1, 0, 3, 37.0),
    Sketcher.Constraint("DistanceY", -1, 1, 0, 3, 26.0),
    Sketcher.Constraint("DistanceX", -1, 1, 1, 3, 55.0),
    Sketcher.Constraint("DistanceX", -1, 1, 2, 3, 73.0),
])
pocket7 = body4.newObject("PartDesign::Pocket", "Pocket006")
pocket7.Profile = sketch15
pocket7.Length = 10
pocket7.Midplane = True

sketch16 = body4.newObject("Sketcher::SketchObject", "Sketch015")
sketch16.AttachmentSupport = (doc.getObject("XY_Plane003"), [""])
sketch16.MapMode = "FlatFace"
sketch16.addGeometry([
    Part.LineSegment(App.Vector(22, 72.5, 0), App.Vector(46, 72.5, 0)),
    Part.ArcOfCircle(Part.Circle(App.Vector(46, 68, 0), App.Vector(0, 0, 1), 4.5), math.radians(-90), math.radians(90)),
    Part.LineSegment(App.Vector(46, 63.5, 0), App.Vector(22, 63.5, 0)),
    Part.ArcOfCircle(Part.Circle(App.Vector(22, 68, 0), App.Vector(0, 0, 1), 4.5), math.radians(90), math.radians(270)),
    Part.LineSegment(App.Vector(59, 72.5, 0), App.Vector(70, 72.5, 0)),
    Part.ArcOfCircle(Part.Circle(App.Vector(70, 68, 0), App.Vector(0, 0, 1), 4.5), math.radians(-90), math.radians(90)),
    Part.LineSegment(App.Vector(70, 63.5, 0), App.Vector(59, 63.5, 0)),
    Part.ArcOfCircle(Part.Circle(App.Vector(59, 68, 0), App.Vector(0, 0, 1), 4.5), math.radians(90), math.radians(270)),
], False)
sketch16.addConstraint([
    Sketcher.Constraint("Tangent", 0, 2, 1, 2),
    Sketcher.Constraint("Tangent", 1, 1, 2, 1),
    Sketcher.Constraint("Tangent", 2, 2, 3, 2),
    Sketcher.Constraint("Tangent", 3, 1, 0, 1),
    Sketcher.Constraint("Tangent", 4, 2, 5, 2),
    Sketcher.Constraint("Tangent", 5, 1, 6, 1),
    Sketcher.Constraint("Tangent", 6, 2, 7, 2),
    Sketcher.Constraint("Tangent", 7, 1, 4, 1),
    Sketcher.Constraint("Horizontal", 0),
    Sketcher.Constraint("Horizontal", 2),
    Sketcher.Constraint("Horizontal", 4),
    Sketcher.Constraint("Horizontal", 6),
    Sketcher.Constraint("Equal", 3, 5),
    Sketcher.Constraint("Horizontal", 3, 3, 5, 3),
    Sketcher.Constraint("Radius", 1, 4.5),
    Sketcher.Constraint("DistanceX", 0, 1, 0, 2, 24.0),
    Sketcher.Constraint("DistanceX", 4, 1, 4, 2, 11.0),
    Sketcher.Constraint("DistanceX", -1, 1, 1, 3, 46.0),
    Sketcher.Constraint("DistanceY", -1, 1, 1, 3, 68.0),
    Sketcher.Constraint("DistanceX", -1, 1, 5, 3, 70.0),
])
pocket8 = body4.newObject("PartDesign::Pocket", "Pocket007")
pocket8.Profile = sketch16
pocket8.Length = 10
pocket8.Midplane = True

doc.recompute()
